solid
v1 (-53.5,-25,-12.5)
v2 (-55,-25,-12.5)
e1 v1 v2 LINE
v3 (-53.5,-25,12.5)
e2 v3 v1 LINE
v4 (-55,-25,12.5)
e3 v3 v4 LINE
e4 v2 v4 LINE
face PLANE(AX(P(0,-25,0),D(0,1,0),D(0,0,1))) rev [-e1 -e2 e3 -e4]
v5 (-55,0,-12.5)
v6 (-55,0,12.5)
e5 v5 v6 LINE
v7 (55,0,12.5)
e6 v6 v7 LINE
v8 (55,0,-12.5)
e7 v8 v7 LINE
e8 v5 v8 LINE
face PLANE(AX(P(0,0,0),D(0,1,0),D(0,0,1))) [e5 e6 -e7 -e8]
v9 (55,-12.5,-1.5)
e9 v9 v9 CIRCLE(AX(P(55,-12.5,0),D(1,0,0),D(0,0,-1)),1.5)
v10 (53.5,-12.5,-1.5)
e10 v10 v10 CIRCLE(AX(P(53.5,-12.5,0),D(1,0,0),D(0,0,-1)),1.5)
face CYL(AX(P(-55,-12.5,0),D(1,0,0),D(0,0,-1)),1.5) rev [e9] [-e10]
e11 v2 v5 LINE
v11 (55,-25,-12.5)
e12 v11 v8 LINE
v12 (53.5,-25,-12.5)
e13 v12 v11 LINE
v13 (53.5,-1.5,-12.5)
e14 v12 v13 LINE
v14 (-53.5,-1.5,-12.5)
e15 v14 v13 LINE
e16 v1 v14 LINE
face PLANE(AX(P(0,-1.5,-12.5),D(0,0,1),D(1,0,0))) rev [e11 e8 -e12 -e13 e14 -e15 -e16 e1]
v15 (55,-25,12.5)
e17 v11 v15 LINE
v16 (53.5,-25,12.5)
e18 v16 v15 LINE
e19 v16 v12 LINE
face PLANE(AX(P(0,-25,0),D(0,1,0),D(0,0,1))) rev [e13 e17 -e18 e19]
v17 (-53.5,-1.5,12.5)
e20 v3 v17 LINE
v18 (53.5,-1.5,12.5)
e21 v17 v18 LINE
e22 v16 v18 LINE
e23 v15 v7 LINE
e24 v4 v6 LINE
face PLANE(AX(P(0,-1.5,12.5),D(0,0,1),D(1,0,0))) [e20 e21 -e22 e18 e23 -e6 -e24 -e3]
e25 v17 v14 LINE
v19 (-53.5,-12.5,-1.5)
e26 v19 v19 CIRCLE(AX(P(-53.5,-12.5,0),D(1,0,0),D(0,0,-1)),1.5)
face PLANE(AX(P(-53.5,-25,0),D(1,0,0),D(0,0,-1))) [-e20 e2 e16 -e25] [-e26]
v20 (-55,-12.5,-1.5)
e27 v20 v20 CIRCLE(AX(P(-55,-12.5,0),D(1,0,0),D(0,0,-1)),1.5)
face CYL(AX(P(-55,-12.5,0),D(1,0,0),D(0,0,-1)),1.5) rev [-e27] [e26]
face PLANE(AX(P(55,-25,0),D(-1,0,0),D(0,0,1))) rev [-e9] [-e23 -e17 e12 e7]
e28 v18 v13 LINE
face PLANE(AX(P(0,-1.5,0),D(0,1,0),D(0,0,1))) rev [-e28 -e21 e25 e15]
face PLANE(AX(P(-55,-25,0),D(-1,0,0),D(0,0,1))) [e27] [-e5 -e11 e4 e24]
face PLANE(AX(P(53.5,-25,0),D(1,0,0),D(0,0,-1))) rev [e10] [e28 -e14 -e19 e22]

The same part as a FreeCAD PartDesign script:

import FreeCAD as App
import Part
import Sketcher
Q = App.Units.Quantity

doc = App.newDocument("Part")
body = doc.addObject("PartDesign::Body", "Body")

# Sketch on XZ plane
sketch1 = body.newObject("Sketcher::SketchObject", "Sketch")
sketch1.AttachmentSupport = (doc.getObject("XZ_Plane"), [""])
sketch1.MapMode = "FlatFace"
sketch1.addGeometry(Part.LineSegment(App.Vector(-54, -12, 0), App.Vector(-54, 12, 0)), False)
sketch1.addGeometry(Part.LineSegment(App.Vector(-54, 12, 0), App.Vector(54, 12, 0)), False)
sketch1.addGeometry(Part.LineSegment(App.Vector(54, 12, 0), App.Vector(54, -12, 0)), False)
sketch1.addGeometry(Part.LineSegment(App.Vector(54, -12, 0), App.Vector(-54, -12, 0)), False)
sketch1.addConstraint(Sketcher.Constraint("Coincident", 0, 2, 1, 1))
sketch1.addConstraint(Sketcher.Constraint("Coincident", 1, 2, 2, 1))
sketch1.addConstraint(Sketcher.Constraint("Coincident", 2, 2, 3, 1))
sketch1.addConstraint(Sketcher.Constraint("Coincident", 3, 2, 0, 1))
sketch1.addConstraint(Sketcher.Constraint("Vertical", 0))
sketch1.addConstraint(Sketcher.Constraint("Horizontal", 1))
sketch1.addConstraint(Sketcher.Constraint("Vertical", 2))
sketch1.addConstraint(Sketcher.Constraint("Horizontal", 3))
sketch1.addConstraint(Sketcher.Constraint("Symmetric", 0, 2, 2, 2, -1, 1))
sketch1.addConstraint(Sketcher.Constraint("DistanceX", 1, 1, 1, 2, Q("107 mm")))
sketch1.addConstraint(Sketcher.Constraint("DistanceY", 0, 1, 0, 2, Q("25 mm")))
pad1 = body.newObject("PartDesign::Pad", "Pad")
pad1.Profile = sketch1
pad1.Length = 1.5

# Sketch on XZ plane
sketch2 = body.newObject("Sketcher::SketchObject", "Sketch001")
sketch2.AttachmentSupport = (doc.getObject("XZ_Plane"), [""])
sketch2.MapMode = "FlatFace"
sketch2.addGeometry(Part.LineSegment(App.Vector(-55, -12.5, 0), App.Vector(-55, 12.5, 0)), False)
sketch2.addGeometry(Part.LineSegment(App.Vector(-55, 12.5, 0), App.Vector(-53.5, 12.5, 0)), False)
sketch2.addGeometry(Part.LineSegment(App.Vector(-53.5, 12.5, 0), App.Vector(-53.5, -12.5, 0)), False)
sketch2.addGeometry(Part.LineSegment(App.Vector(-53.5, -12.5, 0), App.Vector(-55, -12.5, 0)), False)
sketch2.addGeometry(Part.LineSegment(App.Vector(53.5, -12.5, 0), App.Vector(53.5, 12.5, 0)), False)
sketch2.addGeometry(Part.LineSegment(App.Vector(53.5, 12.5, 0), App.Vector(55, 12.5, 0)), False)
sketch2.addGeometry(Part.LineSegment(App.Vector(55, 12.5, 0), App.Vector(55, -12.5, 0)), False)
sketch2.addGeometry(Part.LineSegment(App.Vector(55, -12.5, 0), App.Vector(53.5, -12.5, 0)), False)
sketch2.addConstraint(Sketcher.Constraint("Coincident", 0, 2, 1, 1))
sketch2.addConstraint(Sketcher.Constraint("Coincident", 1, 2, 2, 1))
sketch2.addConstraint(Sketcher.Constraint("Coincident", 2, 2, 3, 1))
sketch2.addConstraint(Sketcher.Constraint("Coincident", 3, 2, 0, 1))
sketch2.addConstraint(Sketcher.Constraint("Coincident", 4, 2, 5, 1))
sketch2.addConstraint(Sketcher.Constraint("Coincident", 5, 2, 6, 1))
sketch2.addConstraint(Sketcher.Constraint("Coincident", 6, 2, 7, 1))
sketch2.addConstraint(Sketcher.Constraint("Coincident", 7, 2, 4, 1))
sketch2.addConstraint(Sketcher.Constraint("Vertical", 0))
sketch2.addConstraint(Sketcher.Constraint("Horizontal", 1))
sketch2.addConstraint(Sketcher.Constraint("Vertical", 2))
sketch2.addConstraint(Sketcher.Constraint("Horizontal", 3))
sketch2.addConstraint(Sketcher.Constraint("Vertical", 4))
sketch2.addConstraint(Sketcher.Constraint("Horizontal", 5))
sketch2.addConstraint(Sketcher.Constraint("Vertical", 6))
sketch2.addConstraint(Sketcher.Constraint("Horizontal", 7))
sketch2.addConstraint(Sketcher.Constraint("Symmetric", 2, 2, 4, 2, -1, 1))
sketch2.addConstraint(Sketcher.Constraint("Symmetric", 0, 2, 6, 2, -1, 1))
sketch2.addConstraint(Sketcher.Constraint("Horizontal", 1, 2, 4, 2))
sketch2.addConstraint(Sketcher.Constraint("DistanceY", 0, 1, 0, 2, Q("25 mm")))
sketch2.addConstraint(Sketcher.Constraint("DistanceX", 1, 1, 1, 2, Q("1.5 mm")))
sketch2.addConstraint(Sketcher.Constraint("DistanceX", 0, 2, -1, 1, Q("55 mm")))
pad2 = body.newObject("PartDesign::Pad", "Pad001")
pad2.Profile = sketch2
pad2.Length = 25

# Sketch on YZ plane
sketch3 = body.newObject("Sketcher::SketchObject", "Sketch002")
sketch3.AttachmentSupport = (doc.getObject("YZ_Plane"), [""])
sketch3.MapMode = "FlatFace"
sketch3.AttachmentOffset = App.Placement(App.Vector(0, 0, 55), App.Rotation())
sketch3.addGeometry(Part.Circle(App.Vector(-12.5, 0, 0), App.Vector(0, 0, 1), 1.5), False)
sketch3.addConstraint(Sketcher.Constraint("PointOnObject", 0, 3, -1))
sketch3.addConstraint(Sketcher.Constraint("Diameter", 0, Q("3 mm")))
sketch3.addConstraint(Sketcher.Constraint("DistanceX", 0, 3, -1, 1, Q("12.5 mm")))
pocket1 = body.newObject("PartDesign::Pocket", "Pocket")
pocket1.Profile = sketch3
pocket1.Type = "ThroughAll"

doc.recompute()
